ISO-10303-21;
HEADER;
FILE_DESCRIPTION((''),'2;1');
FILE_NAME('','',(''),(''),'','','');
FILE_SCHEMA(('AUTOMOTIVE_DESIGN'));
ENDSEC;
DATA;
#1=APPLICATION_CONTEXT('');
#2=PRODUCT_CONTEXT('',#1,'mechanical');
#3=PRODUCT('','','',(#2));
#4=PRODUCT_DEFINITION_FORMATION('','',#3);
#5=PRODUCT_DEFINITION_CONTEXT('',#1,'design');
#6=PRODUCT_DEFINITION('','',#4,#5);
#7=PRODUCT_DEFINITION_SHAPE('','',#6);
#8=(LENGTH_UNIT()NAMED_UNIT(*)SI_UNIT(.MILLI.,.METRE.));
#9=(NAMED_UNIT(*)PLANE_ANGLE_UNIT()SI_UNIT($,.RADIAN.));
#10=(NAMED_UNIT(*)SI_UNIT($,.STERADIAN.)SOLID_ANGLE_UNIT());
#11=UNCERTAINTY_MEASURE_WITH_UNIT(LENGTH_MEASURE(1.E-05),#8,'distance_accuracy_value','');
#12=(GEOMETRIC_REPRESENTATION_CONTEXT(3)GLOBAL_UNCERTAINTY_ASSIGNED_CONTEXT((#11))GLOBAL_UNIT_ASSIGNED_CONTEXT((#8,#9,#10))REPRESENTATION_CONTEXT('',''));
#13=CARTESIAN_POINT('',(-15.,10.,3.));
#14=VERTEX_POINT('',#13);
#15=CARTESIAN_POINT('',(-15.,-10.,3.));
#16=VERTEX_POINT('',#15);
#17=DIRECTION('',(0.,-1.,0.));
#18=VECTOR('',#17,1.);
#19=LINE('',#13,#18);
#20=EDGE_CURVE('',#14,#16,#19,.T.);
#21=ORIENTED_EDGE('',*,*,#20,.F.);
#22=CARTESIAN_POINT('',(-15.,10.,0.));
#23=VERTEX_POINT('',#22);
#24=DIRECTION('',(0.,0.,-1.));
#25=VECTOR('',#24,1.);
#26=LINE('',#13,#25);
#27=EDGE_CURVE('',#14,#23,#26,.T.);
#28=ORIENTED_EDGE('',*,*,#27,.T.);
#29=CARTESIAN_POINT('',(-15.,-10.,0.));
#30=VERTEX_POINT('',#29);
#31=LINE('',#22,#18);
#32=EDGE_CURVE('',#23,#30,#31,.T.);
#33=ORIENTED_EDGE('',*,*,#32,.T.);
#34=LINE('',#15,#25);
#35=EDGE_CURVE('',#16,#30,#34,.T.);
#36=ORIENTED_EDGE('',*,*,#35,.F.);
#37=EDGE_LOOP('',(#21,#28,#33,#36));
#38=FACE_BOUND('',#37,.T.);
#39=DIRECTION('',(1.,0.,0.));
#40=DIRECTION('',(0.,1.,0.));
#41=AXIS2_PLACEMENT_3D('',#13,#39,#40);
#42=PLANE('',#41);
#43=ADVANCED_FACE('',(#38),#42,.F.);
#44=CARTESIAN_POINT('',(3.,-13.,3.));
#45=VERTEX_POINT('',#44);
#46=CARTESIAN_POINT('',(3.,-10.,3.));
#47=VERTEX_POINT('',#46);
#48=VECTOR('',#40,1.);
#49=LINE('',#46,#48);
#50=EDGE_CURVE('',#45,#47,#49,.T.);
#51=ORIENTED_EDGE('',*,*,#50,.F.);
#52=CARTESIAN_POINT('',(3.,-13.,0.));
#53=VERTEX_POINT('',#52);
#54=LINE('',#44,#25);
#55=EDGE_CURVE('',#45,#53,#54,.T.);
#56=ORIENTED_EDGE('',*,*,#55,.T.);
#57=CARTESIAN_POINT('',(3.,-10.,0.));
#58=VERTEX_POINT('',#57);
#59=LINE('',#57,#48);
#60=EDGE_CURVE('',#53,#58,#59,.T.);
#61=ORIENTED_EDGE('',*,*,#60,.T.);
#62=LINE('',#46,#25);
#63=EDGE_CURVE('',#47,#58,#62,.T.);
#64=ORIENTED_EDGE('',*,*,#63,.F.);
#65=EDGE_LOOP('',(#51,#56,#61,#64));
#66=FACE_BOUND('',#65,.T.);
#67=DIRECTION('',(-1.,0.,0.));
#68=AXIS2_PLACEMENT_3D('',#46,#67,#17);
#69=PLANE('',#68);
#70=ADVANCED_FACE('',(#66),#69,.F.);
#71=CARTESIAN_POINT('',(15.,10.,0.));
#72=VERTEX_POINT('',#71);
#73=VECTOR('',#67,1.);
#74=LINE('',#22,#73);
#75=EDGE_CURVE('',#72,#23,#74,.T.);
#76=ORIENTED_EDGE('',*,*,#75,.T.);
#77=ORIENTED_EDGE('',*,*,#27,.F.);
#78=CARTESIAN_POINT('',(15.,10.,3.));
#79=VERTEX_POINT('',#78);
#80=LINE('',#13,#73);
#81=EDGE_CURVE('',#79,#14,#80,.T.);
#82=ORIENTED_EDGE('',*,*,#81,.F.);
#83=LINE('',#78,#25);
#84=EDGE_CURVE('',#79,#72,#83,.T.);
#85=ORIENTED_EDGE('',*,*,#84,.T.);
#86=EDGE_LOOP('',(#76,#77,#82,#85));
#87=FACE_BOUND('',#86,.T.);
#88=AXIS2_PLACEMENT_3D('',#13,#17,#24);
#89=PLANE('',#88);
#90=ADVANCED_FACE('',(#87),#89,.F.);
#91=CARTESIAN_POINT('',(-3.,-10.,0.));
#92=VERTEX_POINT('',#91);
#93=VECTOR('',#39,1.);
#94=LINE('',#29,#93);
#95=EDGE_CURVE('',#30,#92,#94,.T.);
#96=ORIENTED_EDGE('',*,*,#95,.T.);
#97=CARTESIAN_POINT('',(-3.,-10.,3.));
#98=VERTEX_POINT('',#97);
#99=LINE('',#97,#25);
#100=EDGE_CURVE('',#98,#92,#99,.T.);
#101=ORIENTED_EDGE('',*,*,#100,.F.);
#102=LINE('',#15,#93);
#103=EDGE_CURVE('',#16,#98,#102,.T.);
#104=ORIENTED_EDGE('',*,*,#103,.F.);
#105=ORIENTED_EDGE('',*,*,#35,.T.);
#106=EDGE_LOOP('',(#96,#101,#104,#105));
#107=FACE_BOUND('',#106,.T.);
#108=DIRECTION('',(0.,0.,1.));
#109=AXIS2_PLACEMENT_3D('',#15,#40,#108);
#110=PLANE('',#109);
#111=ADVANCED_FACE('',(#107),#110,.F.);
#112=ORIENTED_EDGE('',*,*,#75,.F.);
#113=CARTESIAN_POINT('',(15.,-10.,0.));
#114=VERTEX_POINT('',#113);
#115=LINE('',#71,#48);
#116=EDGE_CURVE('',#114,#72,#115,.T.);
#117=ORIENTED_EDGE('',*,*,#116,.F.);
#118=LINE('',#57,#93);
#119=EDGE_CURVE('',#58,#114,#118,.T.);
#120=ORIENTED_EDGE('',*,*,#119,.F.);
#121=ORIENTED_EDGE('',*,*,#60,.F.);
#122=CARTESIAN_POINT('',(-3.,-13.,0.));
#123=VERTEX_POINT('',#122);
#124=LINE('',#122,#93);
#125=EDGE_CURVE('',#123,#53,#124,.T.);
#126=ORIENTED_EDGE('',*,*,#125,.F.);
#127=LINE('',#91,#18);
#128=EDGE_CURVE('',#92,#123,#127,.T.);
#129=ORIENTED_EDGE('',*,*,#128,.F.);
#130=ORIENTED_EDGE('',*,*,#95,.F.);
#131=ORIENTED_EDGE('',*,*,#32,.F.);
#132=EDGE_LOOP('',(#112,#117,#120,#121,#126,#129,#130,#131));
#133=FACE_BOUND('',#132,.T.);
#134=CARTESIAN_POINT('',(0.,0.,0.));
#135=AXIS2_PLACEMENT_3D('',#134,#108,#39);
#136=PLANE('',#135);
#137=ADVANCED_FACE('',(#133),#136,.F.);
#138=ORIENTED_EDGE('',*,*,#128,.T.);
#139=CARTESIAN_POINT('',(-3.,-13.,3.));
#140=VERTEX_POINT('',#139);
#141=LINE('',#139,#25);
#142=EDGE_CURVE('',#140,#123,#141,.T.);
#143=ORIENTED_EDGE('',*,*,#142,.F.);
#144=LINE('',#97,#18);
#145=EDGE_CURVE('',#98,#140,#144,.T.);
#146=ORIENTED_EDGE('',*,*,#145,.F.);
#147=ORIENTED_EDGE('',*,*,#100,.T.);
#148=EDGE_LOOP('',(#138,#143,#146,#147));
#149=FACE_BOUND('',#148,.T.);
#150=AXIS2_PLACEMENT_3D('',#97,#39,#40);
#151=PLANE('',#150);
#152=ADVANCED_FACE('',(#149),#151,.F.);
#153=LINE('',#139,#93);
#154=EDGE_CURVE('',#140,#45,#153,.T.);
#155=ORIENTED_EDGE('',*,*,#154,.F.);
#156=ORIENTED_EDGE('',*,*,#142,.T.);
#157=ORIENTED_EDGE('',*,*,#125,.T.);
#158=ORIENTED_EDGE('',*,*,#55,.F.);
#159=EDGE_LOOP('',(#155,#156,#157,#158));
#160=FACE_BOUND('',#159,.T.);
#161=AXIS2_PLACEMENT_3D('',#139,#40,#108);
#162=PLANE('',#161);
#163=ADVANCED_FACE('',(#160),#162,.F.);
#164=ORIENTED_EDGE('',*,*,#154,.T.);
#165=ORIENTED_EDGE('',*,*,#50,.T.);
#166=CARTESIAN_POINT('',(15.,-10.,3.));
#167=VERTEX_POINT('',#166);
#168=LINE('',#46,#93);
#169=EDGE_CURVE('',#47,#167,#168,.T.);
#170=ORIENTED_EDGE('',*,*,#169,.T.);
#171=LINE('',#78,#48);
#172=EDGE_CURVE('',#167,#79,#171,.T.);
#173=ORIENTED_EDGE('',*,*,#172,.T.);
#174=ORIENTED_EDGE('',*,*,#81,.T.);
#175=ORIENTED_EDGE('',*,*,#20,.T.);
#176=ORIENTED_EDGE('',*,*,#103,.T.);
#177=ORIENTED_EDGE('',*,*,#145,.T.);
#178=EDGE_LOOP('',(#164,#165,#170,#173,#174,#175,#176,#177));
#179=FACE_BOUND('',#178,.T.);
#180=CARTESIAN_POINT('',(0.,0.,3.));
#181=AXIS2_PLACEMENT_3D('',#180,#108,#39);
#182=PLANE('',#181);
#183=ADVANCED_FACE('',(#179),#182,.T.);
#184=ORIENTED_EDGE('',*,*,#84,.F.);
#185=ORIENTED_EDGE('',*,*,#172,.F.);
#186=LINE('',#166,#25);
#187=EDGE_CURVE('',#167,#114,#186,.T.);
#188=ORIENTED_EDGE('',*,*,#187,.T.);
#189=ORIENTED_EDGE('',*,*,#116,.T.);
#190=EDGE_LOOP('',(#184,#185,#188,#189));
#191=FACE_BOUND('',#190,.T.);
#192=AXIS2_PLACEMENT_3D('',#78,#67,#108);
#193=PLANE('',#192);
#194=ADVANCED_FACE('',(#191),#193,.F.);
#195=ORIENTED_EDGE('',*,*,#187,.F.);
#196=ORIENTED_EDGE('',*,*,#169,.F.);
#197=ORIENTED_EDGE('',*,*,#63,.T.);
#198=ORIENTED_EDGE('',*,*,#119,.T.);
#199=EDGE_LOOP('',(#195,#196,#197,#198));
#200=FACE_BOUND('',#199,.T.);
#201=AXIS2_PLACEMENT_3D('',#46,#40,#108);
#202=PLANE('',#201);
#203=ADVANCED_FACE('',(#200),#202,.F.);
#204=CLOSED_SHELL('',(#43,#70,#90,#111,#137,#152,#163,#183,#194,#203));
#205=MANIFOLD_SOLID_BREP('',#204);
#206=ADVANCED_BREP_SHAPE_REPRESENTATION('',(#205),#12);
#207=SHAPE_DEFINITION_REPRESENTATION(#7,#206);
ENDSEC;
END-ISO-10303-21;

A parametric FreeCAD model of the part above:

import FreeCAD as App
import Part
import Sketcher
Q = App.Units.Quantity

doc = App.newDocument("Part")
params = doc.addObject("Spreadsheet::Sheet", "Params")
for row, (alias, value) in enumerate([
    ("sketch1_width", "12 mm"),
    ("sketch1_width2", "30 mm"),
    ("sketch1_height", "20 mm"),
    ("sketch1_height2", "3 mm"),
    ("pad1_length", "3 mm"),
], start=1):
    params.set(f"A{row}", alias)
    params.set(f"B{row}", "=" + value)
    params.setAlias(f"B{row}", alias)

body = doc.addObject("PartDesign::Body", "Body")

sketch1 = doc.addObject("Sketcher::SketchObject", "Sketch")
body.addObject(sketch1)
sketch1.AttachmentSupport = (doc.XY_Plane, [""])
sketch1.MapMode = "FlatFace"
sketch1.addGeometry(Part.LineSegment(App.Vector(3, -10, 0), App.Vector(15, -10, 0)), False)
sketch1.addGeometry(Part.LineSegment(App.Vector(15, -10, 0), App.Vector(15, 10, 0)), False)
sketch1.addGeometry(Part.LineSegment(App.Vector(15, 10, 0), App.Vector(-15, 10, 0)), False)
sketch1.addGeometry(Part.LineSegment(App.Vector(-15, 10, 0), App.Vector(-15, -10, 0)), False)
sketch1.addGeometry(Part.LineSegment(App.Vector(-15, -10, 0), App.Vector(-3, -10, 0)), False)
sketch1.addGeometry(Part.LineSegment(App.Vector(-3, -10, 0), App.Vector(-3, -13, 0)), False)
sketch1.addGeometry(Part.LineSegment(App.Vector(-3, -13, 0), App.Vector(3, -13, 0)), False)
sketch1.addGeometry(Part.LineSegment(App.Vector(3, -13, 0), App.Vector(3, -10, 0)), False)
sketch1.addConstraint(Sketcher.Constraint("Coincident", 0, 2, 1, 1))
sketch1.addConstraint(Sketcher.Constraint("Coincident", 1, 2, 2, 1))
sketch1.addConstraint(Sketcher.Constraint("Coincident", 2, 2, 3, 1))
sketch1.addConstraint(Sketcher.Constraint("Coincident", 3, 2, 4, 1))
sketch1.addConstraint(Sketcher.Constraint("Coincident", 4, 2, 5, 1))
sketch1.addConstraint(Sketcher.Constraint("Coincident", 5, 2, 6, 1))
sketch1.addConstraint(Sketcher.Constraint("Coincident", 6, 2, 7, 1))
sketch1.addConstraint(Sketcher.Constraint("Coincident", 7, 2, 0, 1))
sketch1.addConstraint(Sketcher.Constraint("Horizontal", 0))
sketch1.addConstraint(Sketcher.Constraint("Vertical", 1))
sketch1.addConstraint(Sketcher.Constraint("Horizontal", 2))
sketch1.addConstraint(Sketcher.Constraint("Vertical", 3))
sketch1.addConstraint(Sketcher.Constraint("Horizontal", 4))
sketch1.addConstraint(Sketcher.Constraint("Vertical", 5))
sketch1.addConstraint(Sketcher.Constraint("Horizontal", 6))
sketch1.addConstraint(Sketcher.Constraint("Vertical", 7))
sketch1.addConstraint(Sketcher.Constraint("Symmetric", 0, 2, 2, 2, -1, 1))
sketch1.addConstraint(Sketcher.Constraint("Symmetric", 4, 2, 7, 2, -2))
sketch1.addConstraint(Sketcher.Constraint("DistanceX", 0, 1, 0, 2, Q("12 mm")))
sketch1.addConstraint(Sketcher.Constraint("DistanceX", 2, 2, 2, 1, Q("30 mm")))
sketch1.addConstraint(Sketcher.Constraint("DistanceY", 1, 1, 1, 2, Q("20 mm")))
sketch1.addConstraint(Sketcher.Constraint("DistanceY", 5, 2, 5, 1, Q("3 mm")))
sketch1.setExpression("Constraints[18]", "Params.sketch1_width")
sketch1.setExpression("Constraints[19]", "Params.sketch1_width2")
sketch1.setExpression("Constraints[20]", "Params.sketch1_height")
sketch1.setExpression("Constraints[21]", "Params.sketch1_height2")
pad1 = doc.addObject("PartDesign::Pad", "Pad")
body.addObject(pad1)
pad1.Profile = sketch1
pad1.setExpression("Length", "Params.pad1_length")

doc.recompute()
